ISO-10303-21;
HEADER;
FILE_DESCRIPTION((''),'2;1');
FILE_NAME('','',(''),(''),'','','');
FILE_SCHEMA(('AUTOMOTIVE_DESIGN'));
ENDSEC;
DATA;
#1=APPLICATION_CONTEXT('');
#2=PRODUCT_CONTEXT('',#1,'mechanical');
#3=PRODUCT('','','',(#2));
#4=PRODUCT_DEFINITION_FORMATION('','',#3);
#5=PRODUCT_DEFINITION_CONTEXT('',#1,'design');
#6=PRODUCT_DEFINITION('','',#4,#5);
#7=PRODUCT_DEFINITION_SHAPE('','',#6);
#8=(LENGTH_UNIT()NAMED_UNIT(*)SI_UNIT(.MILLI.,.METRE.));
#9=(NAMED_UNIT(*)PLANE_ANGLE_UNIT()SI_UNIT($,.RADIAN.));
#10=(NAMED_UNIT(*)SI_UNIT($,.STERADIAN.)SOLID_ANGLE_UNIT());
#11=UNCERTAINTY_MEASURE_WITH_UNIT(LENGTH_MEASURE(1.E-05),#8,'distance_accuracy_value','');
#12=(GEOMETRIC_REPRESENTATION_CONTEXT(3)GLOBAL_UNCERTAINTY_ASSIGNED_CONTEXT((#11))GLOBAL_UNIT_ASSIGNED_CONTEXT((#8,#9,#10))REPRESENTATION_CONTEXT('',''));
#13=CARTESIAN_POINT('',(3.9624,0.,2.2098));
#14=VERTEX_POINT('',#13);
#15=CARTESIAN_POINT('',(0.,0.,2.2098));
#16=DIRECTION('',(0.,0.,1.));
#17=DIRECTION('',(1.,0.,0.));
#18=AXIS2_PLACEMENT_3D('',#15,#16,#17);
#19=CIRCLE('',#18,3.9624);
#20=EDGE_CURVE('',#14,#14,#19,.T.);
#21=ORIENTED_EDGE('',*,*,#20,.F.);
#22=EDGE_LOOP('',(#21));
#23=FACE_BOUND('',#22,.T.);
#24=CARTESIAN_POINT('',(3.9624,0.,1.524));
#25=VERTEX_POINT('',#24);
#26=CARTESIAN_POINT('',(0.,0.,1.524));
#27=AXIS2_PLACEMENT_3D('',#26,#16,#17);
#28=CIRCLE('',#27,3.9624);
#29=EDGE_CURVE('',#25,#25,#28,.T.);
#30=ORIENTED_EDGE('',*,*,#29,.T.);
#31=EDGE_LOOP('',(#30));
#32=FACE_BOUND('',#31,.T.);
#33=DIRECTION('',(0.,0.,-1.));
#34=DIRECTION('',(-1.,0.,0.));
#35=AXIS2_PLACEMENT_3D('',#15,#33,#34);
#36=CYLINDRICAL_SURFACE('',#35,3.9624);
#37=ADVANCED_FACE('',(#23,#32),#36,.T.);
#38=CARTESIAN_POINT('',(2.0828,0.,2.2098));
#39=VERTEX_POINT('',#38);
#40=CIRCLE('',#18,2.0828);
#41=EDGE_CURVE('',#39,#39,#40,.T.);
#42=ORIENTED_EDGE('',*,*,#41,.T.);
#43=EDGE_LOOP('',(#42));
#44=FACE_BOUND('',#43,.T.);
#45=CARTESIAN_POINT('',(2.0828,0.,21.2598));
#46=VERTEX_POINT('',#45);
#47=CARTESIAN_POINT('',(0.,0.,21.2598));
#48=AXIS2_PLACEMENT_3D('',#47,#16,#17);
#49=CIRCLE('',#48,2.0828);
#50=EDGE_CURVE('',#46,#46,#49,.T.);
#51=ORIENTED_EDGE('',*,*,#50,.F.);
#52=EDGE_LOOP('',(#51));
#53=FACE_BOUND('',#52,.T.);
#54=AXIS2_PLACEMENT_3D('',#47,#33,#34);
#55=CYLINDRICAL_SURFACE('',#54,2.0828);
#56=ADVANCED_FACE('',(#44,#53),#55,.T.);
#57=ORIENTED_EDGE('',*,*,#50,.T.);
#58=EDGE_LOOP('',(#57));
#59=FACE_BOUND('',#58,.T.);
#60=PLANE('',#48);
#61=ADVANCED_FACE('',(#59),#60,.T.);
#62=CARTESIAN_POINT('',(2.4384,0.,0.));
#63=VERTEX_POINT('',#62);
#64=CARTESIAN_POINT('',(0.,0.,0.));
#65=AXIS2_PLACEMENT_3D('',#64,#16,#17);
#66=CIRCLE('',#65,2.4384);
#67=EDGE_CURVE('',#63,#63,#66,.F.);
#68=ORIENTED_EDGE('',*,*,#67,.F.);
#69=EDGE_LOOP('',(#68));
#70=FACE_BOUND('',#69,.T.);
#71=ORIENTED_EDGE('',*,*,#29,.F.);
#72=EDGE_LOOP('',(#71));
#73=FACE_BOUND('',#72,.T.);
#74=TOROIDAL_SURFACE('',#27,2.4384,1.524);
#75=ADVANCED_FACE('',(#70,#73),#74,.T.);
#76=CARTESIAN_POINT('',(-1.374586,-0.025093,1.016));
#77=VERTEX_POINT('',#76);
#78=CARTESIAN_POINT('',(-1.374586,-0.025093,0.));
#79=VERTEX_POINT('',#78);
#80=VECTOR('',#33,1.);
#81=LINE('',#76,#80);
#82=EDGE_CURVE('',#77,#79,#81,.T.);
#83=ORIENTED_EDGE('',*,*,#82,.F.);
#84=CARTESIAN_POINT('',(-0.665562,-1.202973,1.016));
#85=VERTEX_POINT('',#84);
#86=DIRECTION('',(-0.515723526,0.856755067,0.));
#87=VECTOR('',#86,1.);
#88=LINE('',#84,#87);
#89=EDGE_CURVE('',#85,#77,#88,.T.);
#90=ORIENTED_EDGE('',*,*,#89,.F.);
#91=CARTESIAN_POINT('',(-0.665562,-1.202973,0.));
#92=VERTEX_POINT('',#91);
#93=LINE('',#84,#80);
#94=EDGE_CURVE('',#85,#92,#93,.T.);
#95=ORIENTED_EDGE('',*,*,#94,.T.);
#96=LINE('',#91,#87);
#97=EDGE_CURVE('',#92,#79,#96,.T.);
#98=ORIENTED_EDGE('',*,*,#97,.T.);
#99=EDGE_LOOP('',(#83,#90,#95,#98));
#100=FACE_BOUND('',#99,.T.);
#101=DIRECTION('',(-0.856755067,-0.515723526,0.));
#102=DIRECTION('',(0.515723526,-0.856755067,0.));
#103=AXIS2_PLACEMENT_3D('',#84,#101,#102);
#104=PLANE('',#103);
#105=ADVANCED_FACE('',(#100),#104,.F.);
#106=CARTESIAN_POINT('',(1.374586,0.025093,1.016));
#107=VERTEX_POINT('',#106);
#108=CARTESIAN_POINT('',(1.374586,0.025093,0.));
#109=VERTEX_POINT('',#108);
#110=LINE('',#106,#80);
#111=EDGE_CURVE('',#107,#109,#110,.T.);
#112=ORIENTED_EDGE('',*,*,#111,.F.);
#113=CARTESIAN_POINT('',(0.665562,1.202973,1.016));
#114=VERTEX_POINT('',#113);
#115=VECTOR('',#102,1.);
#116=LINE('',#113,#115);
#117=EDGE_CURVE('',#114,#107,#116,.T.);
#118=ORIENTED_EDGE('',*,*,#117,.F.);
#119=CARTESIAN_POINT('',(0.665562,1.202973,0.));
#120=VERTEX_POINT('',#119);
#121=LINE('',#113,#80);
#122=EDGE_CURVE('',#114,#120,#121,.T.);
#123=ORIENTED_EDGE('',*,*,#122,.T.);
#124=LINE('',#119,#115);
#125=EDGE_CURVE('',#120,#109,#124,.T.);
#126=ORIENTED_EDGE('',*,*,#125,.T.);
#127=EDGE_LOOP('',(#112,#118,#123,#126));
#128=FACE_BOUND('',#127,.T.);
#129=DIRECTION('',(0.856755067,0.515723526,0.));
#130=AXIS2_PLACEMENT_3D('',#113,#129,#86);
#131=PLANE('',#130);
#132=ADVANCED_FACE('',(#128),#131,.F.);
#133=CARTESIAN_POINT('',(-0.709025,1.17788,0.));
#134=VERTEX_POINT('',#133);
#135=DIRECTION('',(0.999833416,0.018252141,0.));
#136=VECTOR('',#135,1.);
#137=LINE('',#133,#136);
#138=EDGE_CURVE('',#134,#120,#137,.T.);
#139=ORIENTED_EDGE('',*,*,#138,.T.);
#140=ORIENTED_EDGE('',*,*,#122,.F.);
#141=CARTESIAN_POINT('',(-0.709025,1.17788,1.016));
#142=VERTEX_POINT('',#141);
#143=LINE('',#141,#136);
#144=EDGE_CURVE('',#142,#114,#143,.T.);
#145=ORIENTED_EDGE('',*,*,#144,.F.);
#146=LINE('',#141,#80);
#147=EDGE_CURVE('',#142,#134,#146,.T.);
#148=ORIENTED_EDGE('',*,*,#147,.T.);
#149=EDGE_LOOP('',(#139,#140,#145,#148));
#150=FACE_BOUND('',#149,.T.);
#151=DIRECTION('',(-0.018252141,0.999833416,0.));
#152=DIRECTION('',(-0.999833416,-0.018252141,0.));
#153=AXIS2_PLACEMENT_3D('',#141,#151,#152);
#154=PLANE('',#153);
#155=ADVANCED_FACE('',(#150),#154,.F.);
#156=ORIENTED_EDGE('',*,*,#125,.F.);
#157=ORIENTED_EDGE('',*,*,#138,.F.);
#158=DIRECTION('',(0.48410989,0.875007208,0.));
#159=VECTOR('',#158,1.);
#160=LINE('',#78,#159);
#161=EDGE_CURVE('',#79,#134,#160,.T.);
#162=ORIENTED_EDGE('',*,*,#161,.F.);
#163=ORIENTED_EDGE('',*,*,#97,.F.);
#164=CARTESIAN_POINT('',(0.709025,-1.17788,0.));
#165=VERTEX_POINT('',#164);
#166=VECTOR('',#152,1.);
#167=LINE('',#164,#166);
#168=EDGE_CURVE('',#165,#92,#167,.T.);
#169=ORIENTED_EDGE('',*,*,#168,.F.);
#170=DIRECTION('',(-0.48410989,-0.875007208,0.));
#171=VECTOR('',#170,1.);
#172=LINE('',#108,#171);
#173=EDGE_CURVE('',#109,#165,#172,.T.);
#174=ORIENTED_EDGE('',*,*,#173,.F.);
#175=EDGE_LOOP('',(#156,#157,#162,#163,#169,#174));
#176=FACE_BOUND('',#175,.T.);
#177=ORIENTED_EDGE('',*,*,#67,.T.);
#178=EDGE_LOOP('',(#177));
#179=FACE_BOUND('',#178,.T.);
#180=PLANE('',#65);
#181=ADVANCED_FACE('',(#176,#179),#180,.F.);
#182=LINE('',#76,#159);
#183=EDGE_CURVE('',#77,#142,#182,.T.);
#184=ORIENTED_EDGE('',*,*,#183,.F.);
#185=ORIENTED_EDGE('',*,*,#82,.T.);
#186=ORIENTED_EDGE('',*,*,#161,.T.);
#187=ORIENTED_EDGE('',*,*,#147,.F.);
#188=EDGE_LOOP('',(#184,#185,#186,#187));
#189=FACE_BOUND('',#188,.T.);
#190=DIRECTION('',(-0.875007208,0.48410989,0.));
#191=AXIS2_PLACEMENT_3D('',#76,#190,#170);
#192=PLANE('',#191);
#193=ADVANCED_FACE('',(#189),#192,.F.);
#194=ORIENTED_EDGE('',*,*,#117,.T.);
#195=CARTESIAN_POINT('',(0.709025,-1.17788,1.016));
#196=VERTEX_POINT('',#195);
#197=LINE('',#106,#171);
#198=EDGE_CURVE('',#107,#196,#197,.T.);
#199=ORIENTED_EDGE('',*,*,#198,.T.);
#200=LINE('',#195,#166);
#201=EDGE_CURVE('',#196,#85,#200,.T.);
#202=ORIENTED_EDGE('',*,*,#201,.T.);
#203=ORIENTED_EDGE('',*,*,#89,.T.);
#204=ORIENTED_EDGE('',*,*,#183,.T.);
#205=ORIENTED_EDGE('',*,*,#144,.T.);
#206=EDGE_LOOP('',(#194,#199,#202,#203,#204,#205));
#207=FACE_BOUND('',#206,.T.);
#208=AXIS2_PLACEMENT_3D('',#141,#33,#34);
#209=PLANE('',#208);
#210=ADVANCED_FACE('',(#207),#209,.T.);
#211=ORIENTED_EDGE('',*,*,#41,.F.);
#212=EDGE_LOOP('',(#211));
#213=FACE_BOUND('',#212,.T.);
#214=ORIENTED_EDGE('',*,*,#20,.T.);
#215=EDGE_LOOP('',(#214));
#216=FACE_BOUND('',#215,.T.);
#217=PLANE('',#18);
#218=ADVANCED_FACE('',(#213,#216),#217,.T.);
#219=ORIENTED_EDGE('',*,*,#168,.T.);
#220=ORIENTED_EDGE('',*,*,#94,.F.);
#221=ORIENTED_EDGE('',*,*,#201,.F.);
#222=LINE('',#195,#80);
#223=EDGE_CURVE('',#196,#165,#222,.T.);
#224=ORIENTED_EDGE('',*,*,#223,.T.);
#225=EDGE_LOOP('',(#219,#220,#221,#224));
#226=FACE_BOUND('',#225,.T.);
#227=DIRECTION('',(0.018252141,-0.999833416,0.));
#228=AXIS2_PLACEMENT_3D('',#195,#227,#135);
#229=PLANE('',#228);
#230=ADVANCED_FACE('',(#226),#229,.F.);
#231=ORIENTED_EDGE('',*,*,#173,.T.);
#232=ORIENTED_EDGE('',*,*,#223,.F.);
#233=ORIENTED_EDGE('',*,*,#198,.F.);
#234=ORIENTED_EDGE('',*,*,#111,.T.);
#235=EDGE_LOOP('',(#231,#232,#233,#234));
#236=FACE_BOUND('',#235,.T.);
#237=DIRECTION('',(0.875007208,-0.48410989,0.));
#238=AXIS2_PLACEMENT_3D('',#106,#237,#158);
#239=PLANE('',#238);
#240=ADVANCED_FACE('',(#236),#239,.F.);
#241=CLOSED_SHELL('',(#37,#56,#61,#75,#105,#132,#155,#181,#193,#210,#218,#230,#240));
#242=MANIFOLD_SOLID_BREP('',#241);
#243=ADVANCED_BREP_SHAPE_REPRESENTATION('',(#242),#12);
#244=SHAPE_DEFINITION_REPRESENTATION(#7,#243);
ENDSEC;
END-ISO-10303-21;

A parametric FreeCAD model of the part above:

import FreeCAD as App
import Part
import Sketcher

V = App.Vector
Q = App.Units.Quantity


def edges_at(feature, points):
    """Names of the edges that pass closest to the given points."""
    edges = feature.Shape.Edges
    near = lambda p: min(range(len(edges)), key=lambda i: edges[i].distToShape(Part.Vertex(*p))[0])
    return sorted({f"Edge{near(p) + 1}" for p in points})


def add_polygon(sketch, points):
    """Adds a closed chain of lines whose ends are joined by coincident constraints."""
    first, n = sketch.GeometryCount, len(points)
    for a, b in zip(points, points[1:] + points[:1]):
        sketch.addGeometry(Part.LineSegment(App.Vector(*a, 0), App.Vector(*b, 0)), False)
    for i in range(n):
        sketch.addConstraint(Sketcher.Constraint("Coincident", first + i, 2, first + (i + 1) % n, 1))

doc = App.newDocument("Part")
body = doc.addObject("PartDesign::Body", "Body")

sketch1 = body.newObject("Sketcher::SketchObject", "Sketch")
sketch1.AttachmentSupport = (doc.getObject("XY_Plane"), [""])
sketch1.MapMode = "FlatFace"
sketch1.addGeometry(Part.Circle(V(0, 0, 0), V(0, 0, 1), 4), False)
sketch1.addConstraint([
    Sketcher.Constraint("Coincident", 0, 3, -1, 1),
    Sketcher.Constraint("Diameter", 0, Q("0.312 in")),
])
pad1 = body.newObject("PartDesign::Pad", "Pad")
pad1.Profile = sketch1
pad1.Length = Q("0.087 in")
doc.recompute()

fillet = body.newObject("PartDesign::Fillet", "Fillet")
fillet.Base = (pad1, edges_at(pad1, [(-3.962, 0, 0)]))
fillet.Radius = Q("0.06 in")

sketch2 = body.newObject("Sketcher::SketchObject", "Sketch001")
sketch2.AttachmentSupport = (doc.getObject("XY_Plane"), [""])
sketch2.MapMode = "FlatFace"
sketch2.AttachmentOffset = App.Placement(V(0, 0, 0.087 * 25.4), App.Rotation())
sketch2.addGeometry(Part.Circle(V(0, 0, 0), V(0, 0, 1), 2.1), False)
sketch2.addConstraint([
    Sketcher.Constraint("Coincident", 0, 3, -1, 1),
    Sketcher.Constraint("Diameter", 0, Q("0.164 in")),
])
pad2 = body.newObject("PartDesign::Pad", "Pad001")
pad2.Profile = sketch2
pad2.Length = Q("0.75 in")

sketch3 = body.newObject("Sketcher::SketchObject", "Sketch002")
sketch3.AttachmentSupport = (doc.getObject("XY_Plane"), [""])
sketch3.MapMode = "FlatFace"
add_polygon(sketch3, [(-0.7, 1.2), (0.7, 1.2), (1.4, 0), (0.7, -1.2), (-0.7, -1.2), (-1.4, 0)])
sketch3.addConstraint([
    Sketcher.Constraint("Symmetric", 0, 2, 3, 2, -1, 1),
    Sketcher.Constraint("Symmetric", 1, 2, 4, 2, -1, 1),
    Sketcher.Constraint("Symmetric", 2, 2, 5, 2, -1, 1),
    Sketcher.Constraint("Equal", 0, 1),
    Sketcher.Constraint("Equal", 1, 2),
    Sketcher.Constraint("DistanceX", -1, 1, 0, 2, 0.665562),
    Sketcher.Constraint("DistanceY", 2, 2, -1, 1, 1.17788),
    Sketcher.Constraint("DistanceY", 1, 2, 0, 2, 1.17788),
    Sketcher.Constraint("DistanceX", 2, 2, 1, 2, 0.665562),
])
pocket1 = body.newObject("PartDesign::Pocket", "Pocket")
pocket1.Profile = sketch3
pocket1.Length = Q("0.04 in")
pocket1.Reversed = True

doc.recompute()
